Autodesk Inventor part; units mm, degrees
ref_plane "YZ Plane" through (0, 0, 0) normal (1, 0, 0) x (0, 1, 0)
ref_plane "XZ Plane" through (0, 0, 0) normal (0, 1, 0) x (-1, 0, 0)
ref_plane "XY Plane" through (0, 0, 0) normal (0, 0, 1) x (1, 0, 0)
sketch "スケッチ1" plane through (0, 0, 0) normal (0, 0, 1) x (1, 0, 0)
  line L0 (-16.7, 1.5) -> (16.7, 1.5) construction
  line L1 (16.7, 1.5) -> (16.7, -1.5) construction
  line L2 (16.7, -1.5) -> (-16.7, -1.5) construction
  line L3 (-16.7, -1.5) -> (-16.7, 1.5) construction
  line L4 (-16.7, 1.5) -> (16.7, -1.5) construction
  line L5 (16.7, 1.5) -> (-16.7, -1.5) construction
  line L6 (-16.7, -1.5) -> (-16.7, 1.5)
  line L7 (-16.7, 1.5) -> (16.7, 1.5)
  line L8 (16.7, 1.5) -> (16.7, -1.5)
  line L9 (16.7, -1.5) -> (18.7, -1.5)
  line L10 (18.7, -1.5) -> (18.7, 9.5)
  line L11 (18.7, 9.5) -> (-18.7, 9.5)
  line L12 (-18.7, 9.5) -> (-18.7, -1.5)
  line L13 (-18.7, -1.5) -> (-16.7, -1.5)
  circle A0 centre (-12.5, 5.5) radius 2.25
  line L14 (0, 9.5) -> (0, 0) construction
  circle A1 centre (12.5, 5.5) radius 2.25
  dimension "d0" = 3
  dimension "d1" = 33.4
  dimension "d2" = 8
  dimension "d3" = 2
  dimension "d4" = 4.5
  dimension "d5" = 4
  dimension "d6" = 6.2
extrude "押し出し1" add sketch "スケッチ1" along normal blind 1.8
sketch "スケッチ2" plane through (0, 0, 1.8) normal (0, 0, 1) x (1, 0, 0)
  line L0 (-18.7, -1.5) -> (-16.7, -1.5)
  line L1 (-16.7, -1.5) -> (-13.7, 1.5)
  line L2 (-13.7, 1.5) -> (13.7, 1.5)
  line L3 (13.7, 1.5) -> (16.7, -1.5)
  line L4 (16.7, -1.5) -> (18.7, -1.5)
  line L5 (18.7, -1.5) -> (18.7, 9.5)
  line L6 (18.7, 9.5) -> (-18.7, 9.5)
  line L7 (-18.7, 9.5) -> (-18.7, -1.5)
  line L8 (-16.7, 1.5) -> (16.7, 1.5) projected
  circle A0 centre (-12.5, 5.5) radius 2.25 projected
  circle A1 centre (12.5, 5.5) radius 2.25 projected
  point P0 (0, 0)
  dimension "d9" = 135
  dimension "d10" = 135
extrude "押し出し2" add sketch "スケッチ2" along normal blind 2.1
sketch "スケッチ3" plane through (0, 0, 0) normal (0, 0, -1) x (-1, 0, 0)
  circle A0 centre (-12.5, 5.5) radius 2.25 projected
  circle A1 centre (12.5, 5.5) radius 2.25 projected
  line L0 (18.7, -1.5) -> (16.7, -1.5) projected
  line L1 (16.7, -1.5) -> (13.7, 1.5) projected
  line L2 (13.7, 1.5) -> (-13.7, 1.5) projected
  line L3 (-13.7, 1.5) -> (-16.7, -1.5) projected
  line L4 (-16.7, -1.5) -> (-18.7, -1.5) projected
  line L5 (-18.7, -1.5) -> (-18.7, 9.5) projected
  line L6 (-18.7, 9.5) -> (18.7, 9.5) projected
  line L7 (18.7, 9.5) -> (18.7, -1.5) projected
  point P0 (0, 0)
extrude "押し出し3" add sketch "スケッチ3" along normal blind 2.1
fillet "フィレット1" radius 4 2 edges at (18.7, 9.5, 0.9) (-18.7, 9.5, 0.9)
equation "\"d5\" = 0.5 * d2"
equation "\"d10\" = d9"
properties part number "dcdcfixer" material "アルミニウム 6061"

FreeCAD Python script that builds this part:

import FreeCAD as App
import Part
import Sketcher
from FreeCAD import Vector


def edges_at(feature, points):
    """Names of the edges that pass closest to the given points."""
    edges = feature.Shape.Edges
    near = lambda p: min(range(len(edges)), key=lambda i: edges[i].distToShape(Part.Vertex(*p))[0])
    return sorted({f"Edge{near(p) + 1}" for p in points})

doc = App.newDocument("Part")
params = doc.addObject("Spreadsheet::Sheet", "Params")
for row, (alias, value) in enumerate([
    ("sketch1_diameter", "4.5 mm"),
    ("sketch1_width", "2 mm"),
    ("sketch1_height", "3 mm"),
    ("sketch1_width2", "33.4 mm"),
    ("pad1_length", "1.8 mm"),
    ("sketch2_diameter", "4.5 mm"),
    ("sketch2_width", "2 mm"),
    ("sketch2_height", "11 mm"),
    ("sketch2_width2", "27.4 mm"),
    ("sketch2_width3", "37.4 mm"),
    ("pad2_length", "2.1 mm"),
    ("sketch3_diameter", "4.5 mm"),
    ("sketch3_width", "2 mm"),
    ("sketch3_height", "11 mm"),
    ("sketch3_width2", "37.4 mm"),
    ("sketch3_width3", "27.4 mm"),
    ("pad3_length", "2.1 mm"),
    ("fillet_radius", "4 mm"),
], start=1):
    params.set(f"A{row}", alias)
    params.set(f"B{row}", "=" + value)
    params.setAlias(f"B{row}", alias)

body = doc.addObject("PartDesign::Body", "Body")

# Sketch on XY plane
sketch1 = body.newObject("Sketcher::SketchObject", "Sketch")
sketch1.AttachmentSupport = (doc.getObject("XY_Plane"), [""])
sketch1.MapMode = "FlatFace"
sketch1.addGeometry([
    Part.LineSegment(Vector(-18.7, -1.5, 0), Vector(-16.7, -1.5, 0)),  # 0
    Part.LineSegment(Vector(-16.7, -1.5, 0), Vector(-16.7, 1.5, 0)),  # 1
    Part.LineSegment(Vector(-16.7, 1.5, 0), Vector(16.7, 1.5, 0)),  # 2
    Part.LineSegment(Vector(16.7, 1.5, 0), Vector(16.7, -1.5, 0)),  # 3
    Part.LineSegment(Vector(16.7, -1.5, 0), Vector(18.7, -1.5, 0)),  # 4
    Part.LineSegment(Vector(18.7, -1.5, 0), Vector(18.7, 9.5, 0)),  # 5
    Part.LineSegment(Vector(18.7, 9.5, 0), Vector(-18.7, 9.5, 0)),  # 6
    Part.LineSegment(Vector(-18.7, 9.5, 0), Vector(-18.7, -1.5, 0)),  # 7
    Part.Circle(Vector(-12.5, 5.5, 0), Vector(0, 0, 1), 2.2),  # 8
    Part.Circle(Vector(12.5, 5.5, 0), Vector(0, 0, 1), 2.2),  # 9
], False)
sketch1.addConstraint([
    Sketcher.Constraint("Coincident", 0, 2, 1, 1),
    Sketcher.Constraint("Coincident", 1, 2, 2, 1),
    Sketcher.Constraint("Coincident", 2, 2, 3, 1),
    Sketcher.Constraint("Coincident", 3, 2, 4, 1),
    Sketcher.Constraint("Coincident", 4, 2, 5, 1),
    Sketcher.Constraint("Coincident", 5, 2, 6, 1),
    Sketcher.Constraint("Coincident", 6, 2, 7, 1),
    Sketcher.Constraint("Coincident", 7, 2, 0, 1),
    Sketcher.Constraint("Horizontal", 0),
    Sketcher.Constraint("Vertical", 1),
    Sketcher.Constraint("Horizontal", 2),
    Sketcher.Constraint("Vertical", 3),
    Sketcher.Constraint("Horizontal", 4),
    Sketcher.Constraint("Vertical", 5),
    Sketcher.Constraint("Horizontal", 6),
    Sketcher.Constraint("Vertical", 7),
    Sketcher.Constraint("Equal", 8, 9),
    Sketcher.Constraint("Symmetric", 0, 2, 2, 2, -1, 1),
    Sketcher.Constraint("Symmetric", 8, 3, 9, 3, -2),
    Sketcher.Constraint("Symmetric", 4, 2, 7, 2, -2),
    Sketcher.Constraint("Diameter", 8, 4.5),
    Sketcher.Constraint("DistanceX", 0, 1, 0, 2, 2.0),
    Sketcher.Constraint("DistanceY", 1, 1, 1, 2, 3.0),
    Sketcher.Constraint("DistanceX", 2, 1, 2, 2, 33.4),
    Sketcher.Constraint("DistanceY", 1, 2, 8, 3, 4.0),
    Sketcher.Constraint("DistanceY", 9, 3, 5, 2, 4.0),
    Sketcher.Constraint("DistanceX", 9, 3, 4, 2, 6.2),
])
sketch1.setExpression("Constraints[20]", "Params.sketch1_diameter")
sketch1.setExpression("Constraints[21]", "Params.sketch1_width")
sketch1.setExpression("Constraints[22]", "Params.sketch1_height")
sketch1.setExpression("Constraints[23]", "Params.sketch1_width2")
pad1 = body.newObject("PartDesign::Pad", "Pad")
pad1.Profile = sketch1
pad1.setExpression("Length", "Params.pad1_length")

# Sketch on XY plane
sketch2 = body.newObject("Sketcher::SketchObject", "Sketch001")
sketch2.AttachmentSupport = (doc.getObject("XY_Plane"), [""])
sketch2.MapMode = "FlatFace"
sketch2.AttachmentOffset = App.Placement(Vector(0, 0, 1.8), App.Rotation())
sketch2.addGeometry([
    Part.LineSegment(Vector(-18.7, 9.5, 0), Vector(-18.7, -1.5, 0)),  # 0
    Part.LineSegment(Vector(-18.7, -1.5, 0), Vector(-16.7, -1.5, 0)),  # 1
    Part.LineSegment(Vector(-16.7, -1.5, 0), Vector(-13.7, 1.5, 0)),  # 2
    Part.LineSegment(Vector(-13.7, 1.5, 0), Vector(13.7, 1.5, 0)),  # 3
    Part.LineSegment(Vector(13.7, 1.5, 0), Vector(16.7, -1.5, 0)),  # 4
    Part.LineSegment(Vector(16.7, -1.5, 0), Vector(18.7, -1.5, 0)),  # 5
    Part.LineSegment(Vector(18.7, -1.5, 0), Vector(18.7, 9.5, 0)),  # 6
    Part.LineSegment(Vector(18.7, 9.5, 0), Vector(-18.7, 9.5, 0)),  # 7
    Part.Circle(Vector(-12.5, 5.5, 0), Vector(0, 0, 1), 2.2),  # 8
    Part.Circle(Vector(12.5, 5.5, 0), Vector(0, 0, 1), 2.2),  # 9
], False)
sketch2.addConstraint([
    Sketcher.Constraint("Coincident", 0, 2, 1, 1),
    Sketcher.Constraint("Coincident", 1, 2, 2, 1),
    Sketcher.Constraint("Coincident", 2, 2, 3, 1),
    Sketcher.Constraint("Coincident", 3, 2, 4, 1),
    Sketcher.Constraint("Coincident", 4, 2, 5, 1),
    Sketcher.Constraint("Coincident", 5, 2, 6, 1),
    Sketcher.Constraint("Coincident", 6, 2, 7, 1),
    Sketcher.Constraint("Coincident", 7, 2, 0, 1),
    Sketcher.Constraint("Vertical", 0),
    Sketcher.Constraint("Horizontal", 1),
    Sketcher.Constraint("Horizontal", 3),
    Sketcher.Constraint("Horizontal", 5),
    Sketcher.Constraint("Vertical", 6),
    Sketcher.Constraint("Horizontal", 7),
    Sketcher.Constraint("Equal", 8, 9),
    Sketcher.Constraint("Symmetric", 8, 3, 9, 3, -2),
    Sketcher.Constraint("Symmetric", 1, 2, 4, 2, -2),
    Sketcher.Constraint("Perpendicular", 2, 4),
    Sketcher.Constraint("Equal", 1, 5),
    Sketcher.Constraint("Equal", 2, 4),
    Sketcher.Constraint("Diameter", 8, 4.5),
    Sketcher.Constraint("DistanceX", 1, 1, 1, 2, 2.0),
    Sketcher.Constraint("DistanceY", 0, 2, 0, 1, 11.0),
    Sketcher.Constraint("DistanceX", 3, 1, 3, 2, 27.4),
    Sketcher.Constraint("DistanceX", 7, 2, 7, 1, 37.4),
    Sketcher.Constraint("DistanceX", 8, 3, 9, 3, 25.0),
    Sketcher.Constraint("DistanceY", 0, 2, 8, 3, 7.0),
    Sketcher.Constraint("DistanceY", -1, 1, 8, 3, 5.5),
])
sketch2.setExpression("Constraints[20]", "Params.sketch2_diameter")
sketch2.setExpression("Constraints[21]", "Params.sketch2_width")
sketch2.setExpression("Constraints[22]", "Params.sketch2_height")
sketch2.setExpression("Constraints[23]", "Params.sketch2_width2")
sketch2.setExpression("Constraints[24]", "Params.sketch2_width3")
pad2 = body.newObject("PartDesign::Pad", "Pad001")
pad2.Profile = sketch2
pad2.setExpression("Length", "Params.pad2_length")

# Sketch on XY plane
sketch3 = body.newObject("Sketcher::SketchObject", "Sketch002")
sketch3.AttachmentSupport = (doc.getObject("XY_Plane"), [""])
sketch3.MapMode = "FlatFace"
sketch3.addGeometry([
    Part.LineSegment(Vector(-16.7, -1.5, 0), Vector(-18.7, -1.5, 0)),  # 0
    Part.LineSegment(Vector(-18.7, -1.5, 0), Vector(-18.7, 9.5, 0)),  # 1
    Part.LineSegment(Vector(-18.7, 9.5, 0), Vector(18.7, 9.5, 0)),  # 2
    Part.LineSegment(Vector(18.7, 9.5, 0), Vector(18.7, -1.5, 0)),  # 3
    Part.LineSegment(Vector(18.7, -1.5, 0), Vector(16.7, -1.5, 0)),  # 4
    Part.LineSegment(Vector(16.7, -1.5, 0), Vector(13.7, 1.5, 0)),  # 5
    Part.LineSegment(Vector(13.7, 1.5, 0), Vector(-13.7, 1.5, 0)),  # 6
    Part.LineSegment(Vector(-13.7, 1.5, 0), Vector(-16.7, -1.5, 0)),  # 7
    Part.Circle(Vector(12.5, 5.5, 0), Vector(0, 0, 1), 2.2),  # 8
    Part.Circle(Vector(-12.5, 5.5, 0), Vector(0, 0, 1), 2.2),  # 9
], False)
sketch3.addConstraint([
    Sketcher.Constraint("Coincident", 0, 2, 1, 1),
    Sketcher.Constraint("Coincident", 1, 2, 2, 1),
    Sketcher.Constraint("Coincident", 2, 2, 3, 1),
    Sketcher.Constraint("Coincident", 3, 2, 4, 1),
    Sketcher.Constraint("Coincident", 4, 2, 5, 1),
    Sketcher.Constraint("Coincident", 5, 2, 6, 1),
    Sketcher.Constraint("Coincident", 6, 2, 7, 1),
    Sketcher.Constraint("Coincident", 7, 2, 0, 1),
    Sketcher.Constraint("Horizontal", 0),
    Sketcher.Constraint("Vertical", 1),
    Sketcher.Constraint("Horizontal", 2),
    Sketcher.Constraint("Vertical", 3),
    Sketcher.Constraint("Horizontal", 4),
    Sketcher.Constraint("Horizontal", 6),
    Sketcher.Constraint("Equal", 8, 9),
    Sketcher.Constraint("Symmetric", 8, 3, 9, 3, -2),
    Sketcher.Constraint("Symmetric", 0, 2, 3, 2, -2),
    Sketcher.Constraint("Perpendicular", 5, 7),
    Sketcher.Constraint("Equal", 0, 4),
    Sketcher.Constraint("Equal", 5, 7),
    Sketcher.Constraint("Diameter", 8, 4.5),
    Sketcher.Constraint("DistanceX", 0, 2, 0, 1, 2.0),
    Sketcher.Constraint("DistanceY", 1, 1, 1, 2, 11.0),
    Sketcher.Constraint("DistanceX", 2, 1, 2, 2, 37.4),
    Sketcher.Constraint("DistanceX", 6, 2, 6, 1, 27.4),
    Sketcher.Constraint("DistanceX", 9, 3, 8, 3, 25.0),
    Sketcher.Constraint("DistanceY", 0, 2, 9, 3, 7.0),
    Sketcher.Constraint("DistanceY", -1, 1, 8, 3, 5.5),
])
sketch3.setExpression("Constraints[20]", "Params.sketch3_diameter")
sketch3.setExpression("Constraints[21]", "Params.sketch3_width")
sketch3.setExpression("Constraints[22]", "Params.sketch3_height")
sketch3.setExpression("Constraints[23]", "Params.sketch3_width2")
sketch3.setExpression("Constraints[24]", "Params.sketch3_width3")
pad3 = body.newObject("PartDesign::Pad", "Pad002")
pad3.Profile = sketch3
pad3.setExpression("Length", "Params.pad3_length")
pad3.Reversed = True
doc.recompute()

fillet = body.newObject("PartDesign::Fillet", "Fillet")
fillet.Base = (pad3, edges_at(pad3, [(18.7, 9.5, 0.9), (-18.7, 9.5, 0.9)]))
fillet.setExpression("Radius", "Params.fillet_radius")

doc.recompute()
